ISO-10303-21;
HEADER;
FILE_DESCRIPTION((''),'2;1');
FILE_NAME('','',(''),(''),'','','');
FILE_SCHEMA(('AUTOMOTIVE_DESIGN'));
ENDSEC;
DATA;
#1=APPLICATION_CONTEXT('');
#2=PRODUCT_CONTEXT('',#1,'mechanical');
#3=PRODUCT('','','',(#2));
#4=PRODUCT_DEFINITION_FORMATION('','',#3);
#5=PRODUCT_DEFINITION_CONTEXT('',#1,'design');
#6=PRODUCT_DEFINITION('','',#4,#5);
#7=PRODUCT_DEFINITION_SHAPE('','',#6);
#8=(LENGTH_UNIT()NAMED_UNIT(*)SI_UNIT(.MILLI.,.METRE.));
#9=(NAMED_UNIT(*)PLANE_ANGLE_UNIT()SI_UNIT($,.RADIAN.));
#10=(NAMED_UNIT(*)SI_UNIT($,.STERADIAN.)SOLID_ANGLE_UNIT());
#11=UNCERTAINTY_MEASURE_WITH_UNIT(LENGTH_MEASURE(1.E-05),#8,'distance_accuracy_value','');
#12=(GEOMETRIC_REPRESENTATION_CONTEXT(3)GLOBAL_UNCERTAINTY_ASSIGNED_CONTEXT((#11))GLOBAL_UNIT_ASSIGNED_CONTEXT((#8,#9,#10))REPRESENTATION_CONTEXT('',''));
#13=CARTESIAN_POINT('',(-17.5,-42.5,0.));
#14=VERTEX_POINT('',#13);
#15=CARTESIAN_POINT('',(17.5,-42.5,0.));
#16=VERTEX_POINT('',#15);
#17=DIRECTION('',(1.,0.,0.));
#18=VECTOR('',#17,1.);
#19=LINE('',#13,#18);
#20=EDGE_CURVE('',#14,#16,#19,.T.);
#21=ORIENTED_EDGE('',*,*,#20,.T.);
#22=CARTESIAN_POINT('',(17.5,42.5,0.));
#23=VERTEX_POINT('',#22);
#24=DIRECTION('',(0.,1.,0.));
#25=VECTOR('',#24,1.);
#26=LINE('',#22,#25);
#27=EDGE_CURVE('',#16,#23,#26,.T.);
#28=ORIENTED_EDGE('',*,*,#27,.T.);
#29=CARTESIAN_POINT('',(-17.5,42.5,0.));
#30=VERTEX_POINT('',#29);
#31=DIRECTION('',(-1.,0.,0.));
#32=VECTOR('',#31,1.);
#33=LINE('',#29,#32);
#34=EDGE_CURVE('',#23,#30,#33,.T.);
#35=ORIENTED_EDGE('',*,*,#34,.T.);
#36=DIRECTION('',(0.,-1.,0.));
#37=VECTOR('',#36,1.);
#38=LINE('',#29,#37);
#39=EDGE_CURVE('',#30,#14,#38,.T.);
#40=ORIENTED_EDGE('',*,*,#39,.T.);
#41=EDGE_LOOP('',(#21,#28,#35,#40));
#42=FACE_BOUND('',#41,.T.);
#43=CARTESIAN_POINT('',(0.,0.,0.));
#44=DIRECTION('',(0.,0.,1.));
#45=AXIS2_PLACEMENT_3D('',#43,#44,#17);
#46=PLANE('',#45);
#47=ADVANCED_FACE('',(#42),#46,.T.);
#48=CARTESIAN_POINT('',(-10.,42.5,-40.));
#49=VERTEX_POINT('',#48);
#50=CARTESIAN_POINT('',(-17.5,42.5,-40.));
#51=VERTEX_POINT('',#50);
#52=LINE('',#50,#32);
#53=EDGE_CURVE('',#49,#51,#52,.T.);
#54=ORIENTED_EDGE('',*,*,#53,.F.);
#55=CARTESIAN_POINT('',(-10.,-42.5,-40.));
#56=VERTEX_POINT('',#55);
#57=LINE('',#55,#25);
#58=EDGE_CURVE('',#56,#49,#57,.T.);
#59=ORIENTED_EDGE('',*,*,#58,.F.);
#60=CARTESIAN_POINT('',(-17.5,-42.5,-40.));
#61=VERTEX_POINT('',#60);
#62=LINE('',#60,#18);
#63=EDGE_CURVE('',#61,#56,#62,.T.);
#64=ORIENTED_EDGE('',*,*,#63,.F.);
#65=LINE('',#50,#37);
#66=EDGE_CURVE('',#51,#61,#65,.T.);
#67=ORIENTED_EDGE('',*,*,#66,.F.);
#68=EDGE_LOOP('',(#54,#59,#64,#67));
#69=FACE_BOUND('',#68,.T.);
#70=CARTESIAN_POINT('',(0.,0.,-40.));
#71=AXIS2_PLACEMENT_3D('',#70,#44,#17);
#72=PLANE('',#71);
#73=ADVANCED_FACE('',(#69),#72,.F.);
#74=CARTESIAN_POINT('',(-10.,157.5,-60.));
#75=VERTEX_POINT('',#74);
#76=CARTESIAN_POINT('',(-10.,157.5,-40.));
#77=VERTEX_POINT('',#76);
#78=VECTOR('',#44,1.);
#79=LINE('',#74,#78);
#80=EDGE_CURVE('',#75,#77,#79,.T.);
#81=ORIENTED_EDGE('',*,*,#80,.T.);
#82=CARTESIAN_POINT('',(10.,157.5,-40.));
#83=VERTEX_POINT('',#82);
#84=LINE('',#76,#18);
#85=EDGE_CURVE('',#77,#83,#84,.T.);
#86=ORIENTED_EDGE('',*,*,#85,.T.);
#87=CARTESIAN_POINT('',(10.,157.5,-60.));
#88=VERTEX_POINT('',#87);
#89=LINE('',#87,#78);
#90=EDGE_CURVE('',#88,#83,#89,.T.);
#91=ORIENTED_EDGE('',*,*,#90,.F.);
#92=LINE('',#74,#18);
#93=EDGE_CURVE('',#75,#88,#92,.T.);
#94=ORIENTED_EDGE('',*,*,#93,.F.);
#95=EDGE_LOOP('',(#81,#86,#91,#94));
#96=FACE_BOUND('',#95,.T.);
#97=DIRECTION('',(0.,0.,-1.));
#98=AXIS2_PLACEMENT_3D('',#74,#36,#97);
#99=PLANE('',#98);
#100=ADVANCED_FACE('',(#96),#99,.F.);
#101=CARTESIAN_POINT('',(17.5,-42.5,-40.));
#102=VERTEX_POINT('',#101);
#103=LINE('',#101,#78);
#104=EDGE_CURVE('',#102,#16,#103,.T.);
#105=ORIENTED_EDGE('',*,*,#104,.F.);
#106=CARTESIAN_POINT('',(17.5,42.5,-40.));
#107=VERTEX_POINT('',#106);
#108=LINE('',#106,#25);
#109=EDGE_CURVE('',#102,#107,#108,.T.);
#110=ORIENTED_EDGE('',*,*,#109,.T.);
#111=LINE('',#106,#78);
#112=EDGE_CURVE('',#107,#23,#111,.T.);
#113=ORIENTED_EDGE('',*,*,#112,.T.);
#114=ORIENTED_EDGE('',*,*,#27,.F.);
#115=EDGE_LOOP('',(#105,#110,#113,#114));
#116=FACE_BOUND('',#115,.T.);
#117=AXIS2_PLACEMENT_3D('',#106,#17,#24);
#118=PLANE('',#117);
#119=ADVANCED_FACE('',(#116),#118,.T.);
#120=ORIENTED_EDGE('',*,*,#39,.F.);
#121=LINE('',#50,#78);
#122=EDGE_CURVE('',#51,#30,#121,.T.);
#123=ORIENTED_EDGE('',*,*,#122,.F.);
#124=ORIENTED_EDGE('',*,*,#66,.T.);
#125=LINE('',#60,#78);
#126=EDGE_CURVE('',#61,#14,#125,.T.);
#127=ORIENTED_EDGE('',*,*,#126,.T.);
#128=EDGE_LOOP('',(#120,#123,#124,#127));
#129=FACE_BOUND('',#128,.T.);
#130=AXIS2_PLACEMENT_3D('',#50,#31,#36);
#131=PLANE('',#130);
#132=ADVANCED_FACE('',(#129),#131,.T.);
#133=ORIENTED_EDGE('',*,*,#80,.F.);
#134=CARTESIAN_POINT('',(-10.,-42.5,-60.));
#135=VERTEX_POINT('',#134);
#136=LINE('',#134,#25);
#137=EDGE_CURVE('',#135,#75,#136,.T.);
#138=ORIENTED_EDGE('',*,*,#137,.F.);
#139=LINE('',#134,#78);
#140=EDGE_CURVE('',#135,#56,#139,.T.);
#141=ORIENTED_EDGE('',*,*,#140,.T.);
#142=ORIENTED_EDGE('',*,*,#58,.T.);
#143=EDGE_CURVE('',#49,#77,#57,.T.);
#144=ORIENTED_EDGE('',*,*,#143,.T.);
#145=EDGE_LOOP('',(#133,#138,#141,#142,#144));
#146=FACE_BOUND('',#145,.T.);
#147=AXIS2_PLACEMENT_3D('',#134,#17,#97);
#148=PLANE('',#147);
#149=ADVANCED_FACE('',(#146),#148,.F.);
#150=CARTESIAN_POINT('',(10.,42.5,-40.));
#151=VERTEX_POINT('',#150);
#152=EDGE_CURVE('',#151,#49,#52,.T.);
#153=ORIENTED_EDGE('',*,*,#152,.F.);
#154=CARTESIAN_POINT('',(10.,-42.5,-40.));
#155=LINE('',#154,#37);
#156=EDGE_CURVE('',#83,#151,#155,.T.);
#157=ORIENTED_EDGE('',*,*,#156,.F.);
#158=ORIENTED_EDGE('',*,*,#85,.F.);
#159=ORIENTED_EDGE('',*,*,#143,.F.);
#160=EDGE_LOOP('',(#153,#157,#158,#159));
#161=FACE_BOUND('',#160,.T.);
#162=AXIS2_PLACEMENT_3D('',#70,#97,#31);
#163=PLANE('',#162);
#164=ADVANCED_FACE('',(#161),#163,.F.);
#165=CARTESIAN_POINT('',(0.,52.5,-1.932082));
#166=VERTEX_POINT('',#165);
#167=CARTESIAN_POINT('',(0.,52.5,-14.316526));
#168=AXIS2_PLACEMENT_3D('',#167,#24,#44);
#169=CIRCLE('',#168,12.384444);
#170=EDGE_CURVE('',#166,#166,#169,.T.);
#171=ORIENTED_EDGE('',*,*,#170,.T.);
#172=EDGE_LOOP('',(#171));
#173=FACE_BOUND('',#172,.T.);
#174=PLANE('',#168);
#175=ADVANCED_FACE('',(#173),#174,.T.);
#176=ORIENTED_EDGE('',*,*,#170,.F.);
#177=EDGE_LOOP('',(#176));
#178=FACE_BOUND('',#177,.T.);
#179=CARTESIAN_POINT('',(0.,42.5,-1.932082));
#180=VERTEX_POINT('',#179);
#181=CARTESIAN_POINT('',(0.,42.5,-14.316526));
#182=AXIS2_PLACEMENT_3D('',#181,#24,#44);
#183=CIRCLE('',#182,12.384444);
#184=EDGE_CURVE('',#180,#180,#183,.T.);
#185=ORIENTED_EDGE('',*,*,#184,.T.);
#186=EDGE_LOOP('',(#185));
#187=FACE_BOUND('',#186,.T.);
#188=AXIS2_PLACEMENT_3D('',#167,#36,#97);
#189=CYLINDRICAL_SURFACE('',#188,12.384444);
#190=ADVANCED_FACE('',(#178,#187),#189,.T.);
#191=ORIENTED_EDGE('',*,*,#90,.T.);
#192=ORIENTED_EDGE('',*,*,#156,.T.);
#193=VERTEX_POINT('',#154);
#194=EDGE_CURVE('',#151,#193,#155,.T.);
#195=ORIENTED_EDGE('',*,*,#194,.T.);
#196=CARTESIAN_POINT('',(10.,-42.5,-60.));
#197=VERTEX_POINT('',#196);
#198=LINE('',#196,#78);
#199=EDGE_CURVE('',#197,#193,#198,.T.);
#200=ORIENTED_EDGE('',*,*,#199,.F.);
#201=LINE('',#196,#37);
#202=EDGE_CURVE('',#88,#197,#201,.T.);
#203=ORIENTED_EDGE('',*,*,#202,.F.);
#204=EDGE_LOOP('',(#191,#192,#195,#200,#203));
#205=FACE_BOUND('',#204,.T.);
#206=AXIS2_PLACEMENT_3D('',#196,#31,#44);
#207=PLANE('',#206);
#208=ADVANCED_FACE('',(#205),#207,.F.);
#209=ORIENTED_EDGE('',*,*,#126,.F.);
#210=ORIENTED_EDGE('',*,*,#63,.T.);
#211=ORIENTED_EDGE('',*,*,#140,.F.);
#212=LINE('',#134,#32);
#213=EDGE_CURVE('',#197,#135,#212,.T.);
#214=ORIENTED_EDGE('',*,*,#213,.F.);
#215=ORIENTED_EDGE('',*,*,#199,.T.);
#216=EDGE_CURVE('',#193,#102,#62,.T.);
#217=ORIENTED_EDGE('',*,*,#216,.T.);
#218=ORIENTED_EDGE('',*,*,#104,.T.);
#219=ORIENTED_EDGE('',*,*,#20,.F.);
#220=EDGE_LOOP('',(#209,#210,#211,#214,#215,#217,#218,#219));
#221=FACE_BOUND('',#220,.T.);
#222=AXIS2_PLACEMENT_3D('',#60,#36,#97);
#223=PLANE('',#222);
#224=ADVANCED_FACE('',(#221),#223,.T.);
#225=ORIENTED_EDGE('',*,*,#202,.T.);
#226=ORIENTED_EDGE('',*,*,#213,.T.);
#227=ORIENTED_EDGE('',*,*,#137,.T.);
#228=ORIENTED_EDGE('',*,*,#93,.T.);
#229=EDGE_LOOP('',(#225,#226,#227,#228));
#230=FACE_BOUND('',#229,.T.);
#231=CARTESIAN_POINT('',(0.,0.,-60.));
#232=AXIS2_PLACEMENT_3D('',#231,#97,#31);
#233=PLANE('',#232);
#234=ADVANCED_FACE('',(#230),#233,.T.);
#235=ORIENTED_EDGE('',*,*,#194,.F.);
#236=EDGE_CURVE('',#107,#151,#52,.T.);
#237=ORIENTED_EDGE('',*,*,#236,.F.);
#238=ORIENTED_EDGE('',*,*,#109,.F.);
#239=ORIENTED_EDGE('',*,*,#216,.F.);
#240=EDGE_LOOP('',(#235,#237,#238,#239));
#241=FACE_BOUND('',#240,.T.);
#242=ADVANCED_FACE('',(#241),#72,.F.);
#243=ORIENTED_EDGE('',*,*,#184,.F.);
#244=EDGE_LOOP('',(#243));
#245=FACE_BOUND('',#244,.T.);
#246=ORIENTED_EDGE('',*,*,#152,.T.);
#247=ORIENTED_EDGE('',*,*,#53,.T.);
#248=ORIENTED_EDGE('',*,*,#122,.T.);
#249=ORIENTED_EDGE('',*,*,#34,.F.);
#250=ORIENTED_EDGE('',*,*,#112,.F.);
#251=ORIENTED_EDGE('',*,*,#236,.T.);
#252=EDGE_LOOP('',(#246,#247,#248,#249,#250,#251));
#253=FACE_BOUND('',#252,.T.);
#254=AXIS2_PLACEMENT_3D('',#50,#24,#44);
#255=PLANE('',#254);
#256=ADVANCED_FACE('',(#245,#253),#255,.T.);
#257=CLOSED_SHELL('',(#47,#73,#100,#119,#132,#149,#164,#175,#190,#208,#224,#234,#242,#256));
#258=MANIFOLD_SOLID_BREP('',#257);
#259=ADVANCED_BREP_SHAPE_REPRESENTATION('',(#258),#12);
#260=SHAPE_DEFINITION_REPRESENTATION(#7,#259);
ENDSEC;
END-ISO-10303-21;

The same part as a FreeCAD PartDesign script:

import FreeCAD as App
import Part
import Sketcher
from FreeCAD import Vector


def add_polygon(sketch, points):
    """Adds a closed chain of lines whose ends are joined by coincident constraints."""
    first, n = sketch.GeometryCount, len(points)
    for a, b in zip(points, points[1:] + points[:1]):
        sketch.addGeometry(Part.LineSegment(App.Vector(*a, 0), App.Vector(*b, 0)), False)
    for i in range(n):
        sketch.addConstraint(Sketcher.Constraint("Coincident", first + i, 2, first + (i + 1) % n, 1))

doc = App.newDocument("Part")
body = doc.addObject("PartDesign::Body", "Body")

# Sketch on XY plane
sketch1 = body.newObject("Sketcher::SketchObject", "Sketch")
sketch1.AttachmentSupport = (doc.getObject("XY_Plane"), [""])
sketch1.MapMode = "FlatFace"
add_polygon(sketch1, [(-17.5, 42.5), (-17.5, -42.5), (17.5, -42.5), (17.5, 42.5)])  # lines 0-3
sketch1.addConstraint([
    Sketcher.Constraint("Vertical", 0),
    Sketcher.Constraint("Horizontal", 1),
    Sketcher.Constraint("Vertical", 2),
    Sketcher.Constraint("Horizontal", 3),
    Sketcher.Constraint("Symmetric", 0, 2, 2, 2, -1, 1),
    Sketcher.Constraint("DistanceX", 1, 1, 1, 2, 35.0),
    Sketcher.Constraint("DistanceY", 0, 2, 0, 1, 85.0),
])
pad1 = body.newObject("PartDesign::Pad", "Pad")
pad1.Profile = sketch1
pad1.Length = 40
pad1.Reversed = True

# Sketch on XZ plane
sketch2 = body.newObject("Sketcher::SketchObject", "Sketch001")
sketch2.AttachmentSupport = (doc.getObject("XZ_Plane"), [""])
sketch2.MapMode = "FlatFace"
sketch2.AttachmentOffset = App.Placement(Vector(0, 0, -42.5), App.Rotation())
sketch2.addGeometry(Part.Circle(Vector(0, -14.316526, 0), Vector(0, 0, 1), 12.384444), False)
sketch2.addConstraint([
    Sketcher.Constraint("PointOnObject", 0, 3, -2),
    Sketcher.Constraint("Diameter", 0, 24.768888),
    Sketcher.Constraint("DistanceY", 0, 3, -1, 1, 14.316526),
])
pad2 = body.newObject("PartDesign::Pad", "Pad001")
pad2.Profile = sketch2
pad2.Length = 10
pad2.Reversed = True

# Sketch on XY plane
sketch3 = body.newObject("Sketcher::SketchObject", "Sketch002")
sketch3.AttachmentSupport = (doc.getObject("XY_Plane"), [""])
sketch3.MapMode = "FlatFace"
sketch3.AttachmentOffset = App.Placement(Vector(0, 0, -40), App.Rotation())
add_polygon(sketch3, [(10, 157.5), (10, -42.5), (-10, -42.5), (-10, 157.5)])  # lines 0-3
sketch3.addConstraint([
    Sketcher.Constraint("Vertical", 0),
    Sketcher.Constraint("Horizontal", 1),
    Sketcher.Constraint("Vertical", 2),
    Sketcher.Constraint("Horizontal", 3),
    Sketcher.Constraint("DistanceX", 1, 2, 1, 1, 20.0),
    Sketcher.Constraint("DistanceY", 0, 2, 0, 1, 200.0),
    Sketcher.Constraint("DistanceX", -1, 1, 0, 2, 10.0),
    Sketcher.Constraint("DistanceY", 0, 2, -1, 1, 42.5),
])
pad3 = body.newObject("PartDesign::Pad", "Pad002")
pad3.Profile = sketch3
pad3.Length = 20
pad3.Reversed = True

doc.recompute()
